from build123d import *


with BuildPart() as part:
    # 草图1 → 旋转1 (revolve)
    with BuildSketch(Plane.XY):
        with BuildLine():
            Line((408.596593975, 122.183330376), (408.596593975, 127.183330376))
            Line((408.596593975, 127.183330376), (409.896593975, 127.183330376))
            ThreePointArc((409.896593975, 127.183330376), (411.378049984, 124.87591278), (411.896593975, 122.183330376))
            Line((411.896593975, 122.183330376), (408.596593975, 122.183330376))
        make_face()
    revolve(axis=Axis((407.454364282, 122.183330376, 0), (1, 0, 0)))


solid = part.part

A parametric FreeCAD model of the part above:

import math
import FreeCAD as App
import Part
import Sketcher
from FreeCAD import Vector

doc = App.newDocument("Part")
body = doc.addObject("PartDesign::Body", "Body")

# Sketch on XY plane
sketch1 = body.newObject("Sketcher::SketchObject", "Sketch")
sketch1.AttachmentSupport = (doc.getObject("XY_Plane"), [""])
sketch1.MapMode = "FlatFace"
sketch1.addGeometry([
    Part.LineSegment(Vector(408.6, 127.2, 0), Vector(408.6, 122.2, 0)),
    Part.LineSegment(Vector(408.6, 122.2, 0), Vector(411.9, 122.2, 0)),
    Part.ArcOfCircle(Part.Circle(Vector(404.6, 122.2, 0), Vector(0, 0, 1), 7.2), math.radians(0), math.radians(44)),
    Part.LineSegment(Vector(409.9, 127.2, 0), Vector(408.6, 127.2, 0)),
], False)
sketch1.addGeometry(Part.LineSegment(Vector(404.6, 122.2, 0), Vector(411.9, 122.2, 0)), True)  # axis
sketch1.addConstraint([
    Sketcher.Constraint("Coincident", 0, 2, 1, 1),
    Sketcher.Constraint("Coincident", 1, 2, 2, 1),
    Sketcher.Constraint("Coincident", 2, 2, 3, 1),
    Sketcher.Constraint("Coincident", 3, 2, 0, 1),
    Sketcher.Constraint("Vertical", 0),
    Sketcher.Constraint("Horizontal", 1),
    Sketcher.Constraint("Horizontal", 3),
    Sketcher.Constraint("Horizontal", 4),
    Sketcher.Constraint("Coincident", 4, 1, 2, 3),
    Sketcher.Constraint("Coincident", 4, 2, 1, 2),
    Sketcher.Constraint("DistanceY", 0, 2, 0, 1, 5.0),
    Sketcher.Constraint("Radius", 2, 7.25),
    Sketcher.Constraint("DistanceX", 1, 1, 1, 2, 3.3),
    Sketcher.Constraint("DistanceY", -1, 1, 2, 3, 122.18333),
    Sketcher.Constraint("DistanceX", -1, 1, 2, 3, 404.646594),
])
revolution = body.newObject("PartDesign::Revolution", "Revolution")
revolution.Profile = sketch1
revolution.ReferenceAxis = (sketch1, ["Axis0"])
revolution.Angle = 360

doc.recompute()
